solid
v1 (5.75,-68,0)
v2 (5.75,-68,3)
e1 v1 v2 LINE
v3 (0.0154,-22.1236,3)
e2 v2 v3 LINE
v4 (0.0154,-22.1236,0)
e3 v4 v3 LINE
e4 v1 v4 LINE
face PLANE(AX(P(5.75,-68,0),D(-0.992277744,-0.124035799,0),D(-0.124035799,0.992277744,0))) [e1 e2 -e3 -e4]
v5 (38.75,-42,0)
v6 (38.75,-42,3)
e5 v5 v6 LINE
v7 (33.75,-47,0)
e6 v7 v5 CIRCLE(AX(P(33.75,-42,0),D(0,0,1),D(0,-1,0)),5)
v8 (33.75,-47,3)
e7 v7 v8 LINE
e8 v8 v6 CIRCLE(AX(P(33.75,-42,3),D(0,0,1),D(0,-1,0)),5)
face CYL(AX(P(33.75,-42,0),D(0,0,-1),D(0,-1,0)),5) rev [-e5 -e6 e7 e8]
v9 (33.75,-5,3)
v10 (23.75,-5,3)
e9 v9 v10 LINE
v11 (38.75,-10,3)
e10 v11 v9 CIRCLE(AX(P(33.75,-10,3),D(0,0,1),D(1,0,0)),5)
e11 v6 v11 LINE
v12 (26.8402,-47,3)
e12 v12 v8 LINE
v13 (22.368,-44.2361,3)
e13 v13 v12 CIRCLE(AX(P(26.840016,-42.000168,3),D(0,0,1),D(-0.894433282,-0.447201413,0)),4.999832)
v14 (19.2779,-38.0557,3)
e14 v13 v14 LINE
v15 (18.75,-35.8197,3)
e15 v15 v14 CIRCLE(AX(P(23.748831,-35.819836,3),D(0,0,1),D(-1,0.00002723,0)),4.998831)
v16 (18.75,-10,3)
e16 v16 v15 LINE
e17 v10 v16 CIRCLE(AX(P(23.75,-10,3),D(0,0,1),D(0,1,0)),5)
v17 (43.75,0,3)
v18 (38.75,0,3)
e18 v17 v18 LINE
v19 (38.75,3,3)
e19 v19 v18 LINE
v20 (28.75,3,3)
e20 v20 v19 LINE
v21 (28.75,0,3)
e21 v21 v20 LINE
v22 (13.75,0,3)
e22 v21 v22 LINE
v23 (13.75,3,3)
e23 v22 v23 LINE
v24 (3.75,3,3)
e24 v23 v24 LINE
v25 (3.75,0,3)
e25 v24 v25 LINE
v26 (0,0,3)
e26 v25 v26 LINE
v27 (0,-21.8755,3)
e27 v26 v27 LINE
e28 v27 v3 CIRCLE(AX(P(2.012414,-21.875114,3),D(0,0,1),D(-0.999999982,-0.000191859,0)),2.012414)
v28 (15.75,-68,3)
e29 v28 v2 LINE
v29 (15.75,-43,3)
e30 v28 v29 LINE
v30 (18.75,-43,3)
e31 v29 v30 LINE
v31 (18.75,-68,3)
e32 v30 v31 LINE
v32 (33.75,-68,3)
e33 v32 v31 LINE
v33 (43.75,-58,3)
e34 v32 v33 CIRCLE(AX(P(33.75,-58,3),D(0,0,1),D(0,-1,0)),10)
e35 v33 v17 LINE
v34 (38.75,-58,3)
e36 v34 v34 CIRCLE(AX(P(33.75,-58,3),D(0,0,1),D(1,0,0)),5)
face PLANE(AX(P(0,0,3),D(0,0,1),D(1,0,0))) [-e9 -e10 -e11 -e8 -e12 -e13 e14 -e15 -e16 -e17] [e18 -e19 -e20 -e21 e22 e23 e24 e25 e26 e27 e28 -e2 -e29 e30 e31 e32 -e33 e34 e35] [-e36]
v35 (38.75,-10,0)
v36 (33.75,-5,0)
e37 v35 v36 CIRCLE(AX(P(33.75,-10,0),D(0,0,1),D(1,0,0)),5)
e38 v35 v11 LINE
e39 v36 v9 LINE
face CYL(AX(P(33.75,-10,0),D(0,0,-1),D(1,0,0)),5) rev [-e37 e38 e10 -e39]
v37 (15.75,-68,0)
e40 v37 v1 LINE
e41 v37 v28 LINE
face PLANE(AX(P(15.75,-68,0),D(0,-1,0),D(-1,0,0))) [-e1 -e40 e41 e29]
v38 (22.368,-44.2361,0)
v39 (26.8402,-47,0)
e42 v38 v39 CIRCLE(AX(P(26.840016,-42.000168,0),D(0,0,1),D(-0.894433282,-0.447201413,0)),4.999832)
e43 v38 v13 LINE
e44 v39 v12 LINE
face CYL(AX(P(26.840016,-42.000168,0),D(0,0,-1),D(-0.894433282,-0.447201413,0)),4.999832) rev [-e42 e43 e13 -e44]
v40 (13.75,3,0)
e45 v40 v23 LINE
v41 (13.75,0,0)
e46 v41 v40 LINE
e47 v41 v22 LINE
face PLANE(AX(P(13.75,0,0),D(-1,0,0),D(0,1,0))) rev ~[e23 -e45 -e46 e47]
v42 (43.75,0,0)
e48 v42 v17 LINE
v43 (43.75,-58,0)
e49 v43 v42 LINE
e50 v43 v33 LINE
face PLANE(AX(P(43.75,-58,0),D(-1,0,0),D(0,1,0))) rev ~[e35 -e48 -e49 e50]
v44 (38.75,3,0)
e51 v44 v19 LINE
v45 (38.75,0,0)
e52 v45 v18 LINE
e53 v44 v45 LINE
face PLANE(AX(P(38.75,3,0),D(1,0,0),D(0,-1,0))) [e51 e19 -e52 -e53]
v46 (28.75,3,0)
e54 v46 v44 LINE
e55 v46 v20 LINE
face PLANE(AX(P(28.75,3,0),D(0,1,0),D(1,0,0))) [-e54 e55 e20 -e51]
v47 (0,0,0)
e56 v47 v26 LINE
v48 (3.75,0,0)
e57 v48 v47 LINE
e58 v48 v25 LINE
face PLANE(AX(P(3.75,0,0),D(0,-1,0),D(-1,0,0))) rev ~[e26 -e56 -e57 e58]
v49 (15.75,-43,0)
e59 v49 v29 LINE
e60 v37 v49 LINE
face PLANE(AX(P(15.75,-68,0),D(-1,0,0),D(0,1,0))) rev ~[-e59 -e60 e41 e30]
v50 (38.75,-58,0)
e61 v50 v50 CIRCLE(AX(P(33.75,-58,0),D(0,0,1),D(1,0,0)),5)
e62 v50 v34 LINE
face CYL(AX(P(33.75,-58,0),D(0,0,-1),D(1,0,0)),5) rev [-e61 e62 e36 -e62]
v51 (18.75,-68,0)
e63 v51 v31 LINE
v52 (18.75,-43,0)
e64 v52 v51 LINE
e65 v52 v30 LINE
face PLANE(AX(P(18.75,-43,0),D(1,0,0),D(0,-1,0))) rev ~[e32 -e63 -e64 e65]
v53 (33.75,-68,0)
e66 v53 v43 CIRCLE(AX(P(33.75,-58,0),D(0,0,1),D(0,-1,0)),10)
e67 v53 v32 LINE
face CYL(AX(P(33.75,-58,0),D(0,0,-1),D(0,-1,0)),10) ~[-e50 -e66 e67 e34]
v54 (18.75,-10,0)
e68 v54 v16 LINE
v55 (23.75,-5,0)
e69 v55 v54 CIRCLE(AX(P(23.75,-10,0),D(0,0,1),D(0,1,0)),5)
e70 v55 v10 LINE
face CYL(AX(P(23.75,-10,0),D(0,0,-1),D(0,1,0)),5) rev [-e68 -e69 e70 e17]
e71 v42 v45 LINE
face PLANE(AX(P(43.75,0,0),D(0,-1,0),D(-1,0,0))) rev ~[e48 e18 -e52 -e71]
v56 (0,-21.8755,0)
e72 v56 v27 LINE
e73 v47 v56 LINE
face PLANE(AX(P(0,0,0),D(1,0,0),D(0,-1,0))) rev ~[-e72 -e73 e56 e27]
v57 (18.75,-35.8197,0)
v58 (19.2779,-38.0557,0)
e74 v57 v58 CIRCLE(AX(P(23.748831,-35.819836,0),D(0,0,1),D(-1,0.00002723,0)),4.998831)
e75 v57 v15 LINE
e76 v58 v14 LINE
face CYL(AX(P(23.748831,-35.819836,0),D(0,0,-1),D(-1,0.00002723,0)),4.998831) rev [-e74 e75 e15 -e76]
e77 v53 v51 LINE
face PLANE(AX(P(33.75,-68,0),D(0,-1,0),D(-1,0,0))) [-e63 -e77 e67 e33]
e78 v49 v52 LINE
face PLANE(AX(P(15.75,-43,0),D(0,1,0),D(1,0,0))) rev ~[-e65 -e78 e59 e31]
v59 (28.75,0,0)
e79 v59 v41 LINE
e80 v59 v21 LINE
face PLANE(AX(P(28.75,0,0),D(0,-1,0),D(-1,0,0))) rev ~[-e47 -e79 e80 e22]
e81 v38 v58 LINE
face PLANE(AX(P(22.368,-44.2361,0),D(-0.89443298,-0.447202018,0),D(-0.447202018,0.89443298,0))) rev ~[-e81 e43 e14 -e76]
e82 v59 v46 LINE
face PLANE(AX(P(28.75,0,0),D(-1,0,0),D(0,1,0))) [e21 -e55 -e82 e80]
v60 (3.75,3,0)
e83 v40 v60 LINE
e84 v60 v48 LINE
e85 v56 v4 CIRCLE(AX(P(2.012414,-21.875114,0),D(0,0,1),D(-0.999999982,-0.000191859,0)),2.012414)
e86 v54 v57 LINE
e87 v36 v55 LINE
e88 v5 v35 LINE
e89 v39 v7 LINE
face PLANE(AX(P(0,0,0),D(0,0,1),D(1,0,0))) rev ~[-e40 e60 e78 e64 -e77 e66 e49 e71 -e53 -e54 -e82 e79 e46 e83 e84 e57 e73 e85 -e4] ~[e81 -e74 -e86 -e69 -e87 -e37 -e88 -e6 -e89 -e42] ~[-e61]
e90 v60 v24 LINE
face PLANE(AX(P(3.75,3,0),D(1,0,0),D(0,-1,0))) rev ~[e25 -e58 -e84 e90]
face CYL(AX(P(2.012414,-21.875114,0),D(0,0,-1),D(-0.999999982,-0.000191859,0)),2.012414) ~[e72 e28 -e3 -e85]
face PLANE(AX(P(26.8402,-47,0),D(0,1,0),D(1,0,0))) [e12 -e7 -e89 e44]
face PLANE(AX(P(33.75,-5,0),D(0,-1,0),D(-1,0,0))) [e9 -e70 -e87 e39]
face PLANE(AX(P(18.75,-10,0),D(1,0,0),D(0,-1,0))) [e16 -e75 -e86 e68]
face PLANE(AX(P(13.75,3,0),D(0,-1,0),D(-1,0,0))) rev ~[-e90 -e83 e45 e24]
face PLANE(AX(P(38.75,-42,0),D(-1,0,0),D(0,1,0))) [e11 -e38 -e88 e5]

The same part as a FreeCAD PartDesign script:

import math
import FreeCAD as App
import Part
import Sketcher
from FreeCAD import Vector
Q = App.Units.Quantity

doc = App.newDocument("Part")
body = doc.addObject("PartDesign::Body", "Body")

# Sketch on XY plane
sketch1 = doc.addObject("Sketcher::SketchObject", "Sketch")
body.addObject(sketch1)
sketch1.AttachmentSupport = (doc.XY_Plane, [""])
sketch1.MapMode = "FlatFace"
sketch1.addGeometry([
    Part.LineSegment(Vector(5.75, -68, 0), Vector(15.75, -68, 0)),  # 0
    Part.LineSegment(Vector(15.75, -68, 0), Vector(15.75, -43, 0)),  # 1
    Part.LineSegment(Vector(15.75, -43, 0), Vector(18.75, -43, 0)),  # 2
    Part.LineSegment(Vector(18.75, -43, 0), Vector(18.75, -68, 0)),  # 3
    Part.LineSegment(Vector(18.75, -68, 0), Vector(33.75, -68, 0)),  # 4
    Part.ArcOfCircle(Part.Circle(Vector(33.75, -58, 0), Vector(0, 0, 1), 10), math.radians(-90), math.radians(0)),  # 5
    Part.LineSegment(Vector(43.75, -58, 0), Vector(43.75, 0, 0)),  # 6
    Part.LineSegment(Vector(43.75, 0, 0), Vector(38.75, 0, 0)),  # 7
    Part.LineSegment(Vector(38.75, 0, 0), Vector(38.75, 3, 0)),  # 8
    Part.LineSegment(Vector(38.75, 3, 0), Vector(28.75, 3, 0)),  # 9
    Part.LineSegment(Vector(28.75, 3, 0), Vector(28.75, 0, 0)),  # 10
    Part.LineSegment(Vector(28.75, 0, 0), Vector(13.75, 0, 0)),  # 11
    Part.LineSegment(Vector(13.75, 0, 0), Vector(13.75, 3, 0)),  # 12
    Part.LineSegment(Vector(13.75, 3, 0), Vector(3.75, 3, 0)),  # 13
    Part.LineSegment(Vector(3.75, 3, 0), Vector(3.75, 0, 0)),  # 14
    Part.LineSegment(Vector(3.75, 0, 0), Vector(0, 0, 0)),  # 15
    Part.LineSegment(Vector(0, 0, 0), Vector(0, -21.88, 0)),  # 16
    Part.ArcOfCircle(Part.Circle(Vector(2.01, -21.88, 0), Vector(0, 0, 1), 2.01), math.radians(-179.99), math.radians(-172.91)),  # 17
    Part.LineSegment(Vector(0.02, -22.12, 0), Vector(5.75, -68, 0)),  # 18
    Part.Circle(Vector(33.75, -58, 0), Vector(0, 0, 1), 5),  # 19
    Part.LineSegment(Vector(33.75, -47, 0), Vector(26.84, -47, 0)),  # 20
    Part.ArcOfCircle(Part.Circle(Vector(26.84, -42, 0), Vector(0, 0, 1), 5), math.radians(-153), math.radians(-90)),  # 21
    Part.LineSegment(Vector(22.37, -44.24, 0), Vector(19.28, -38.06, 0)),  # 22
    Part.ArcOfCircle(Part.Circle(Vector(23.75, -35.82, 0), Vector(0, 0, 1), 5), math.radians(180), math.radians(207)),  # 23
    Part.LineSegment(Vector(18.75, -35.82, 0), Vector(18.75, -10, 0)),  # 24
    Part.ArcOfCircle(Part.Circle(Vector(23.75, -10, 0), Vector(0, 0, 1), 5), math.radians(90), math.radians(180)),  # 25
    Part.LineSegment(Vector(23.75, -5, 0), Vector(33.75, -5, 0)),  # 26
    Part.ArcOfCircle(Part.Circle(Vector(33.75, -10, 0), Vector(0, 0, 1), 5), math.radians(0), math.radians(90)),  # 27
    Part.LineSegment(Vector(38.75, -10, 0), Vector(38.75, -42, 0)),  # 28
    Part.ArcOfCircle(Part.Circle(Vector(33.75, -42, 0), Vector(0, 0, 1), 5), math.radians(-90), math.radians(0)),  # 29
], False)
sketch1.addConstraint([
    Sketcher.Constraint("Coincident", 0, 2, 1, 1),
    Sketcher.Constraint("Coincident", 1, 2, 2, 1),
    Sketcher.Constraint("Coincident", 2, 2, 3, 1),
    Sketcher.Constraint("Coincident", 3, 2, 4, 1),
    Sketcher.Constraint("Tangent", 4, 2, 5, 1),
    Sketcher.Constraint("Tangent", 5, 2, 6, 1),
    Sketcher.Constraint("Coincident", 6, 2, 7, 1),
    Sketcher.Constraint("Coincident", 7, 2, 8, 1),
    Sketcher.Constraint("Coincident", 8, 2, 9, 1),
    Sketcher.Constraint("Coincident", 9, 2, 10, 1),
    Sketcher.Constraint("Coincident", 10, 2, 11, 1),
    Sketcher.Constraint("Coincident", 11, 2, 12, 1),
    Sketcher.Constraint("Coincident", 12, 2, 13, 1),
    Sketcher.Constraint("Coincident", 13, 2, 14, 1),
    Sketcher.Constraint("Coincident", 14, 2, 15, 1),
    Sketcher.Constraint("Coincident", 15, 2, 16, 1),
    Sketcher.Constraint("Tangent", 16, 2, 17, 1),
    Sketcher.Constraint("Coincident", 17, 2, 18, 1),
    Sketcher.Constraint("Coincident", 18, 2, 0, 1),
    Sketcher.Constraint("Tangent", 20, 2, 21, 2),
    Sketcher.Constraint("Tangent", 21, 1, 22, 1),
    Sketcher.Constraint("Tangent", 22, 2, 23, 2),
    Sketcher.Constraint("Tangent", 23, 1, 24, 1),
    Sketcher.Constraint("Tangent", 24, 2, 25, 2),
    Sketcher.Constraint("Tangent", 25, 1, 26, 1),
    Sketcher.Constraint("Tangent", 26, 2, 27, 2),
    Sketcher.Constraint("Tangent", 27, 1, 28, 1),
    Sketcher.Constraint("Tangent", 28, 2, 29, 2),
    Sketcher.Constraint("Tangent", 29, 1, 20, 1),
    Sketcher.Constraint("Horizontal", 0),
    Sketcher.Constraint("Vertical", 1),
    Sketcher.Constraint("Horizontal", 2),
    Sketcher.Constraint("Vertical", 3),
    Sketcher.Constraint("Horizontal", 4),
    Sketcher.Constraint("Vertical", 6),
    Sketcher.Constraint("Horizontal", 7),
    Sketcher.Constraint("Vertical", 8),
    Sketcher.Constraint("Horizontal", 9),
    Sketcher.Constraint("Vertical", 10),
    Sketcher.Constraint("Horizontal", 11),
    Sketcher.Constraint("Vertical", 12),
    Sketcher.Constraint("Horizontal", 13),
    Sketcher.Constraint("Vertical", 14),
    Sketcher.Constraint("Horizontal", 15),
    Sketcher.Constraint("Vertical", 16),
    Sketcher.Constraint("Horizontal", 20),
    Sketcher.Constraint("Vertical", 24),
    Sketcher.Constraint("Horizontal", 26),
    Sketcher.Constraint("Vertical", 28),
    Sketcher.Constraint("Coincident", 15, 2, -1, 1),
    Sketcher.Constraint("Coincident", 19, 3, 5, 3),
    Sketcher.Constraint("Equal", 19, 21),
    Sketcher.Constraint("Equal", 21, 25),
    Sketcher.Constraint("Equal", 25, 27),
    Sketcher.Constraint("Equal", 27, 29),
    Sketcher.Constraint("PointOnObject", 6, 2, -1),
    Sketcher.Constraint("PointOnObject", 10, 2, -1),
    Sketcher.Constraint("Horizontal", 0, 2, 3, 2),
    Sketcher.Constraint("Horizontal", 9, 2, 12, 2),
    Sketcher.Constraint("Vertical", 19, 3, 27, 3),
    Sketcher.Constraint("Vertical", 3, 2, 23, 1),
    Sketcher.Constraint("Vertical", 8, 2, 27, 1),
    Sketcher.Constraint("Equal", 0, 9),
    Sketcher.Constraint("Equal", 4, 11),
    Sketcher.Constraint("Equal", 9, 13),
    Sketcher.Constraint("Equal", 13, 26),
    Sketcher.Constraint("Equal", 2, 8),
    Sketcher.Constraint("Diameter", 19, Q("10 mm")),
    Sketcher.Constraint("Radius", 5, Q("10 mm")),
    Sketcher.Constraint("DistanceX", 0, 1, 0, 2, Q("10 mm")),
    Sketcher.Constraint("DistanceX", 2, 1, 2, 2, Q("3 mm")),
    Sketcher.Constraint("DistanceY", 1, 1, 1, 2, Q("25 mm")),
    Sketcher.Constraint("DistanceY", 25, 3, -1, 1, Q("10 mm")),
    Sketcher.Constraint("DistanceY", 0, 2, -1, 1, Q("68 mm")),
    Sketcher.Constraint("DistanceX", 15, 2, 15, 1, Q("3.75 mm")),
    Sketcher.Constraint("DistanceY", 28, 2, 28, 1, Q("32 mm")),
    Sketcher.Constraint("Radius", 17, Q("2.0124 mm")),
    Sketcher.Constraint("Radius", 23, Q("4.9988 mm")),
    Sketcher.Constraint("DistanceX", 22, 2, 21, 1, Q("3.09 mm")),
    Sketcher.Constraint("DistanceY", 16, 2, 16, 1, Q("21.8755 mm")),
    Sketcher.Constraint("DistanceY", 24, 1, 24, 2, Q("25.8197 mm")),
    Sketcher.Constraint("DistanceY", 17, 2, 16, 2, Q("0.248 mm")),
])
pad1 = doc.addObject("PartDesign::Pad", "Pad")
body.addObject(pad1)
pad1.Profile = sketch1
pad1.Length = 3

doc.recompute()
